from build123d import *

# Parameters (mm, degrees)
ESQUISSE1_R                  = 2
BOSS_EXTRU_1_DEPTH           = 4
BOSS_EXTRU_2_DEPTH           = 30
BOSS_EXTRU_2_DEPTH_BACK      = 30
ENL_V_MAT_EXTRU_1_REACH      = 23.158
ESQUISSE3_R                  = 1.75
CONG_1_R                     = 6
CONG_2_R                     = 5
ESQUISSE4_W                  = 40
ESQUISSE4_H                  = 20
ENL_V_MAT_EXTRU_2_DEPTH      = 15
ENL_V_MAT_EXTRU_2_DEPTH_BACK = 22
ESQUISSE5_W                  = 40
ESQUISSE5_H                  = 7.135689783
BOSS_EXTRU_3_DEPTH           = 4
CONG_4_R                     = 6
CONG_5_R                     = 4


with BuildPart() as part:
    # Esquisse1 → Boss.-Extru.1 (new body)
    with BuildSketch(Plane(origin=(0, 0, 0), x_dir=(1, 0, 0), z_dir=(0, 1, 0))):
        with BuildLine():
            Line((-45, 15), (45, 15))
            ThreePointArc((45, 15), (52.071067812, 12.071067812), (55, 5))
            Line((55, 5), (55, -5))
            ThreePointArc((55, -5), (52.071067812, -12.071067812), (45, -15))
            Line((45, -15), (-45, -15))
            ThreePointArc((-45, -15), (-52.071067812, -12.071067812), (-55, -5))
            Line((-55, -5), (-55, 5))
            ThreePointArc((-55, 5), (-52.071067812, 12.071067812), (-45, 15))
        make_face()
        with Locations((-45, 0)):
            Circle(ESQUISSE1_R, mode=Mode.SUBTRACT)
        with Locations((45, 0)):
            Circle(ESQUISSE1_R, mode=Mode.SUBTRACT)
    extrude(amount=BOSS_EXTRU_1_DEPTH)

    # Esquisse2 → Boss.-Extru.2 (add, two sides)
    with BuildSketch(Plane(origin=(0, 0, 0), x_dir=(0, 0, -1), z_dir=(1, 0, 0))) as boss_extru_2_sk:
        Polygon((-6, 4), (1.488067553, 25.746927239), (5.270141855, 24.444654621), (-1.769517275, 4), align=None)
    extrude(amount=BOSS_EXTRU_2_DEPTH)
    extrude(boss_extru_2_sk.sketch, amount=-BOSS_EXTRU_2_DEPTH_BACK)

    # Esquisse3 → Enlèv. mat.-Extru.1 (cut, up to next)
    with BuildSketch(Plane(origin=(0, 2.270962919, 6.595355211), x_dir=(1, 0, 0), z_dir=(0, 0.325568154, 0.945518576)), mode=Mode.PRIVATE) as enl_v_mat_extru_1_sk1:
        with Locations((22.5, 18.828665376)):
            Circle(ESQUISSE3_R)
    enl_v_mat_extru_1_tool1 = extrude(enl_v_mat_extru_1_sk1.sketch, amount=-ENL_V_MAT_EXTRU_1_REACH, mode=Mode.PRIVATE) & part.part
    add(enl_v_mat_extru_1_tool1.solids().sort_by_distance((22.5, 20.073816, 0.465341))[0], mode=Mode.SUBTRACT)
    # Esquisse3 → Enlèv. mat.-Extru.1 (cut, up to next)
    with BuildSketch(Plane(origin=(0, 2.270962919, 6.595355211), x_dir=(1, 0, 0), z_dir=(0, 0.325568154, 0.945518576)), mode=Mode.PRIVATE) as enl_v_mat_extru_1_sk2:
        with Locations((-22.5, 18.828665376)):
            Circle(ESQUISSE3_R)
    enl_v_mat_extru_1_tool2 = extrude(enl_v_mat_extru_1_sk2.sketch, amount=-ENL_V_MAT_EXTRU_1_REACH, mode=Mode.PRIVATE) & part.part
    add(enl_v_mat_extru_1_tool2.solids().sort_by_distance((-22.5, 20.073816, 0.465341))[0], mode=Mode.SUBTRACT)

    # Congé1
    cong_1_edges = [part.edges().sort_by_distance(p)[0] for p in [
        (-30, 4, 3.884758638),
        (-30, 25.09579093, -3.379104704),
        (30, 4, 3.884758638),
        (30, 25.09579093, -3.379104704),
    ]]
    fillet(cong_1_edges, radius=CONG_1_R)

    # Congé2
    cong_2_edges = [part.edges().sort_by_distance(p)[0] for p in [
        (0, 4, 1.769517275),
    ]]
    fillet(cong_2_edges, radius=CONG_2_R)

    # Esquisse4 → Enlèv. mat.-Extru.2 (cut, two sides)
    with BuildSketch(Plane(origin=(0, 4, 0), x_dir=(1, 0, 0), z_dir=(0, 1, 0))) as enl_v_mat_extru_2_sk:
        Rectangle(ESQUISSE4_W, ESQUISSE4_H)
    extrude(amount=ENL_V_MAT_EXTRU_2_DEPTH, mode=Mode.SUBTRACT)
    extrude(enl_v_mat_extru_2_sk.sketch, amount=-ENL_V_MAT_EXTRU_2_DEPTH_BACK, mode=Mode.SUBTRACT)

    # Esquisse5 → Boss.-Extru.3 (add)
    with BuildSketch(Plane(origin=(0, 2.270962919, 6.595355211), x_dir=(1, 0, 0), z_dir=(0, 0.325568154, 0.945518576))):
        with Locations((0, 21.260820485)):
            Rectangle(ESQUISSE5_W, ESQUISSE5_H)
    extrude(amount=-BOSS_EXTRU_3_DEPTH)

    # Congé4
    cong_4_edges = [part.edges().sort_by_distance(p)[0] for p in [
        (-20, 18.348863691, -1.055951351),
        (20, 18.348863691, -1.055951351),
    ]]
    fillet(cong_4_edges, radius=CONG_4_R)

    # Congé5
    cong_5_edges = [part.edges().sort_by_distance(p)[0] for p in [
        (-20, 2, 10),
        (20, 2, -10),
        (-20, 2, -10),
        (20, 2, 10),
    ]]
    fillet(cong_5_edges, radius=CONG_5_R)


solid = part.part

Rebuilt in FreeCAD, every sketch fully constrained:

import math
import FreeCAD as App
import Part
import Sketcher
Q = App.Units.Quantity


def edges_at(feature, points):
    """Names of the edges that pass closest to the given points."""
    edges = feature.Shape.Edges
    near = lambda p: min(range(len(edges)), key=lambda i: edges[i].distToShape(Part.Vertex(*p))[0])
    return sorted({f"Edge{near(p) + 1}" for p in points})


def add_polygon(sketch, points):
    """Adds a closed chain of lines whose ends are joined by coincident constraints."""
    first, n = sketch.GeometryCount, len(points)
    for a, b in zip(points, points[1:] + points[:1]):
        sketch.addGeometry(Part.LineSegment(App.Vector(*a, 0), App.Vector(*b, 0)), False)
    for i in range(n):
        sketch.addConstraint(Sketcher.Constraint("Coincident", first + i, 2, first + (i + 1) % n, 1))

doc = App.newDocument("Part")
body = doc.addObject("PartDesign::Body", "Body")

sketch1 = body.newObject("Sketcher::SketchObject", "Sketch")
sketch1.AttachmentSupport = (doc.getObject("XZ_Plane"), [""])
sketch1.MapMode = "FlatFace"
sketch1.addGeometry([
    Part.LineSegment(App.Vector(45, -15, 0), App.Vector(-45, -15, 0)),
    Part.ArcOfCircle(Part.Circle(App.Vector(-45, -5, 0), App.Vector(0, 0, 1), 10), math.radians(180), math.radians(270)),
    Part.LineSegment(App.Vector(-55, -5, 0), App.Vector(-55, 5, 0)),
    Part.ArcOfCircle(Part.Circle(App.Vector(-45, 5, 0), App.Vector(0, 0, 1), 10), math.radians(90), math.radians(180)),
    Part.LineSegment(App.Vector(-45, 15, 0), App.Vector(45, 15, 0)),
    Part.ArcOfCircle(Part.Circle(App.Vector(45, 5, 0), App.Vector(0, 0, 1), 10), math.radians(0), math.radians(90)),
    Part.LineSegment(App.Vector(55, 5, 0), App.Vector(55, -5, 0)),
    Part.ArcOfCircle(Part.Circle(App.Vector(45, -5, 0), App.Vector(0, 0, 1), 10), math.radians(-90), math.radians(0)),
    Part.Circle(App.Vector(45, 0, 0), App.Vector(0, 0, 1), 2),
    Part.Circle(App.Vector(-45, 0, 0), App.Vector(0, 0, 1), 2),
], False)
sketch1.addConstraint([
    Sketcher.Constraint("Tangent", 0, 2, 1, 2),
    Sketcher.Constraint("Tangent", 1, 1, 2, 1),
    Sketcher.Constraint("Tangent", 2, 2, 3, 2),
    Sketcher.Constraint("Tangent", 3, 1, 4, 1),
    Sketcher.Constraint("Tangent", 4, 2, 5, 2),
    Sketcher.Constraint("Tangent", 5, 1, 6, 1),
    Sketcher.Constraint("Tangent", 6, 2, 7, 2),
    Sketcher.Constraint("Tangent", 7, 1, 0, 1),
    Sketcher.Constraint("Horizontal", 0),
    Sketcher.Constraint("Vertical", 2),
    Sketcher.Constraint("Horizontal", 4),
    Sketcher.Constraint("Vertical", 6),
    Sketcher.Constraint("Equal", 1, 3),
    Sketcher.Constraint("Equal", 3, 5),
    Sketcher.Constraint("Equal", 5, 7),
    Sketcher.Constraint("Equal", 8, 9),
    Sketcher.Constraint("Symmetric", 1, 3, 5, 3, -1, 1),
    Sketcher.Constraint("Symmetric", 8, 3, 9, 3, -1, 1),
    Sketcher.Constraint("PointOnObject", 8, 3, -1),
    Sketcher.Constraint("Vertical", 7, 3, 8, 3),
    Sketcher.Constraint("Diameter", 8, 4.0),
    Sketcher.Constraint("Radius", 1, 10.0),
    Sketcher.Constraint("DistanceX", 0, 2, 0, 1, 90.0),
    Sketcher.Constraint("DistanceY", 2, 1, 2, 2, 10.0),
])
pad1 = body.newObject("PartDesign::Pad", "Pad")
pad1.Profile = sketch1
pad1.Length = 4
pad1.Reversed = True

sketch2 = body.newObject("Sketcher::SketchObject", "Sketch001")
sketch2.AttachmentSupport = (doc.getObject("YZ_Plane"), [""])
sketch2.MapMode = "FlatFace"
add_polygon(sketch2, [(25.7, -1.5), (4, 6), (4, 1.8), (24.4, -5.3)])
sketch2.addConstraint([
    Sketcher.Constraint("Vertical", 1),
    Sketcher.Constraint("Parallel", 0, 2),
    Sketcher.Constraint("Perpendicular", 2, 3),
    Sketcher.Constraint("Angle", 0, Q("161 deg")),
    Sketcher.Constraint("Distance", 0, 23.0),
    Sketcher.Constraint("Distance", 3, 4.0),
    Sketcher.Constraint("DistanceX", -1, 1, 0, 2, 4.0),
    Sketcher.Constraint("DistanceY", -1, 1, 0, 2, 6.0),
])
pad2 = body.newObject("PartDesign::Pad", "Pad001")
pad2.Profile = sketch2
pad2.Type = "TwoLengths"
pad2.Length = 30
pad2.Length2 = 30

sketch3 = body.newObject("Sketcher::SketchObject", "Sketch002")
sketch3.Placement = App.Placement(App.Vector(0, 2.270963, 6.595355), App.Rotation(App.Vector(1, 0, 0), App.Vector(0, 0.945518576, -0.325568154), App.Vector(0, 0.325568154, 0.945518576), "ZXY"))
sketch3.addGeometry(Part.Circle(App.Vector(22.5, 18.8, 0), App.Vector(0, 0, 1), 1.8), False)
sketch3.addConstraint([
    Sketcher.Constraint("Diameter", 0, 3.5),
    Sketcher.Constraint("DistanceX", -1, 1, 0, 3, 22.5),
    Sketcher.Constraint("DistanceY", -1, 1, 0, 3, 18.828665),
])
pocket1 = body.newObject("PartDesign::Pocket", "Pocket")
pocket1.Profile = sketch3
pocket1.Type = "UpToFirst"

sketch4 = body.newObject("Sketcher::SketchObject", "Sketch003")
sketch4.Placement = App.Placement(App.Vector(0, 2.270963, 6.595355), App.Rotation(App.Vector(1, 0, 0), App.Vector(0, 0.945518576, -0.325568154), App.Vector(0, 0.325568154, 0.945518576), "ZXY"))
sketch4.addGeometry(Part.Circle(App.Vector(-22.5, 18.8, 0), App.Vector(0, 0, 1), 1.8), False)
sketch4.addConstraint([
    Sketcher.Constraint("Diameter", 0, 3.5),
    Sketcher.Constraint("DistanceX", 0, 3, -1, 1, 22.5),
    Sketcher.Constraint("DistanceY", -1, 1, 0, 3, 18.828665),
])
pocket2 = body.newObject("PartDesign::Pocket", "Pocket001")
pocket2.Profile = sketch4
pocket2.Type = "UpToFirst"
doc.recompute()

fillet = body.newObject("PartDesign::Fillet", "Fillet")
fillet.Base = (pocket2, edges_at(pocket2, [
    (-30, 4, 3.885),
    (-30, 25.096, -3.379),
    (30, 4, 3.885),
    (30, 25.096, -3.379),
]))
fillet.Radius = 6
doc.recompute()

fillet2 = body.newObject("PartDesign::Fillet", "Fillet001")
fillet2.Base = (fillet, edges_at(fillet, [(0, 4, 1.77)]))
fillet2.Radius = 5

sketch5 = body.newObject("Sketcher::SketchObject", "Sketch004")
sketch5.AttachmentSupport = (doc.getObject("XZ_Plane"), [""])
sketch5.MapMode = "FlatFace"
sketch5.AttachmentOffset = App.Placement(App.Vector(0, 0, -4), App.Rotation())
add_polygon(sketch5, [(-20, -10), (-20, 10), (20, 10), (20, -10)])
sketch5.addConstraint([
    Sketcher.Constraint("Vertical", 0),
    Sketcher.Constraint("Horizontal", 1),
    Sketcher.Constraint("Vertical", 2),
    Sketcher.Constraint("Horizontal", 3),
    Sketcher.Constraint("Symmetric", 0, 2, 2, 2, -1, 1),
    Sketcher.Constraint("DistanceX", 1, 1, 1, 2, 40.0),
    Sketcher.Constraint("DistanceY", 0, 1, 0, 2, 20.0),
])
pocket3 = body.newObject("PartDesign::Pocket", "Pocket002")
pocket3.Profile = sketch5
pocket3.Type = "TwoLengths"
pocket3.Length = 15
pocket3.Length2 = 22

sketch6 = body.newObject("Sketcher::SketchObject", "Sketch005")
sketch6.Placement = App.Placement(App.Vector(0, 2.270963, 6.595355), App.Rotation(App.Vector(1, 0, 0), App.Vector(0, 0.945518576, -0.325568154), App.Vector(0, 0.325568154, 0.945518576), "ZXY"))
add_polygon(sketch6, [(-20, 25), (-20, 18), (20, 18), (20, 25)])
sketch6.addConstraint([
    Sketcher.Constraint("Vertical", 0),
    Sketcher.Constraint("Horizontal", 1),
    Sketcher.Constraint("Vertical", 2),
    Sketcher.Constraint("Horizontal", 3),
    Sketcher.Constraint("DistanceX", 1, 1, 1, 2, 40.0),
    Sketcher.Constraint("DistanceX", 0, 2, -1, 1, 20.0),
    Sketcher.Constraint("DistanceY", 0, 2, 0, 1, 7.13569),
    Sketcher.Constraint("DistanceY", -1, 1, 0, 2, 17.692976),
])
pad3 = body.newObject("PartDesign::Pad", "Pad002")
pad3.Profile = sketch6
pad3.Length = 4
pad3.Reversed = True
doc.recompute()

fillet3 = body.newObject("PartDesign::Fillet", "Fillet002")
fillet3.Base = (pad3, edges_at(pad3, [(-20, 18.349, -1.056), (20, 18.349, -1.056)]))
fillet3.Radius = 6
doc.recompute()

fillet4 = body.newObject("PartDesign::Fillet", "Fillet003")
fillet4.Base = (fillet3, edges_at(fillet3, [
    (-20, 2, 10),
    (20, 2, -10),
    (-20, 2, -10),
    (20, 2, 10),
]))
fillet4.Radius = 4

doc.recompute()
